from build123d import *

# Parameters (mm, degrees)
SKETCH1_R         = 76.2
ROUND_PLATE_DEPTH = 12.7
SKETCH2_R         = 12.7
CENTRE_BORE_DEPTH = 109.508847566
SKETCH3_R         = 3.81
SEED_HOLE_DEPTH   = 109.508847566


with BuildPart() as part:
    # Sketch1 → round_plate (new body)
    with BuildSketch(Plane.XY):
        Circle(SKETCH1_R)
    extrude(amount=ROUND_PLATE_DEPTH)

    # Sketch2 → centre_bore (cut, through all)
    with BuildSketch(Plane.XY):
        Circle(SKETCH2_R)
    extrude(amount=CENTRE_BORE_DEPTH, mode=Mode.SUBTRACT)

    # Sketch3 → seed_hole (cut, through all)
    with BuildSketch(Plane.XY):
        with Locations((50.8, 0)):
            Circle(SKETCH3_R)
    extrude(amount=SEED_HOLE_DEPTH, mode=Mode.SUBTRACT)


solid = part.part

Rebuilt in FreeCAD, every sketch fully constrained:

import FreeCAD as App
import Part
import Sketcher
from FreeCAD import Vector
Q = App.Units.Quantity

doc = App.newDocument("Part")
params = doc.addObject("Spreadsheet::Sheet", "Params")
for row, (alias, value) in enumerate([
    ("sketch1_diameter", "6 in"),
    ("pad1_length", "0.5 in"),
    ("sketch2_diameter", "1 in"),
    ("sketch3_diameter", "0.3 in"),
], start=1):
    params.set(f"A{row}", alias)
    params.set(f"B{row}", "=" + value)
    params.setAlias(f"B{row}", alias)

body = doc.addObject("PartDesign::Body", "Body")

sketch1 = body.newObject("Sketcher::SketchObject", "Sketch")
sketch1.AttachmentSupport = (doc.getObject("XY_Plane"), [""])
sketch1.MapMode = "FlatFace"
sketch1.addGeometry(Part.Circle(Vector(0, 0, 0), Vector(0, 0, 1), 76), False)
sketch1.addConstraint(Sketcher.Constraint("Coincident", 0, 3, -1, 1))
sketch1.addConstraint(Sketcher.Constraint("Diameter", 0, Q("6 in")))
sketch1.setExpression("Constraints[1]", "Params.sketch1_diameter")
pad1 = body.newObject("PartDesign::Pad", "Pad")
pad1.Profile = sketch1
pad1.setExpression("Length", "Params.pad1_length")

sketch2 = body.newObject("Sketcher::SketchObject", "Sketch001")
sketch2.AttachmentSupport = (doc.getObject("XY_Plane"), [""])
sketch2.MapMode = "FlatFace"
sketch2.addGeometry(Part.Circle(Vector(0, 0, 0), Vector(0, 0, 1), 13), False)
sketch2.addConstraint(Sketcher.Constraint("Coincident", 0, 3, -1, 1))
sketch2.addConstraint(Sketcher.Constraint("Diameter", 0, Q("1 in")))
sketch2.setExpression("Constraints[1]", "Params.sketch2_diameter")
pocket1 = body.newObject("PartDesign::Pocket", "Pocket")
pocket1.Profile = sketch2
pocket1.Type = "ThroughAll"
pocket1.Reversed = True

sketch3 = body.newObject("Sketcher::SketchObject", "Sketch002")
sketch3.AttachmentSupport = (doc.getObject("XY_Plane"), [""])
sketch3.MapMode = "FlatFace"
sketch3.addGeometry(Part.Circle(Vector(50.8, 0, 0), Vector(0, 0, 1), 3.8), False)
sketch3.addConstraint(Sketcher.Constraint("PointOnObject", 0, 3, -1))
sketch3.addConstraint(Sketcher.Constraint("Diameter", 0, Q("0.3 in")))
sketch3.addConstraint(Sketcher.Constraint("DistanceX", -1, 1, 0, 3, Q("2 in")))
sketch3.setExpression("Constraints[1]", "Params.sketch3_diameter")
pocket2 = body.newObject("PartDesign::Pocket", "Pocket001")
pocket2.Profile = sketch3
pocket2.Type = "ThroughAll"
pocket2.Reversed = True

doc.recompute()
